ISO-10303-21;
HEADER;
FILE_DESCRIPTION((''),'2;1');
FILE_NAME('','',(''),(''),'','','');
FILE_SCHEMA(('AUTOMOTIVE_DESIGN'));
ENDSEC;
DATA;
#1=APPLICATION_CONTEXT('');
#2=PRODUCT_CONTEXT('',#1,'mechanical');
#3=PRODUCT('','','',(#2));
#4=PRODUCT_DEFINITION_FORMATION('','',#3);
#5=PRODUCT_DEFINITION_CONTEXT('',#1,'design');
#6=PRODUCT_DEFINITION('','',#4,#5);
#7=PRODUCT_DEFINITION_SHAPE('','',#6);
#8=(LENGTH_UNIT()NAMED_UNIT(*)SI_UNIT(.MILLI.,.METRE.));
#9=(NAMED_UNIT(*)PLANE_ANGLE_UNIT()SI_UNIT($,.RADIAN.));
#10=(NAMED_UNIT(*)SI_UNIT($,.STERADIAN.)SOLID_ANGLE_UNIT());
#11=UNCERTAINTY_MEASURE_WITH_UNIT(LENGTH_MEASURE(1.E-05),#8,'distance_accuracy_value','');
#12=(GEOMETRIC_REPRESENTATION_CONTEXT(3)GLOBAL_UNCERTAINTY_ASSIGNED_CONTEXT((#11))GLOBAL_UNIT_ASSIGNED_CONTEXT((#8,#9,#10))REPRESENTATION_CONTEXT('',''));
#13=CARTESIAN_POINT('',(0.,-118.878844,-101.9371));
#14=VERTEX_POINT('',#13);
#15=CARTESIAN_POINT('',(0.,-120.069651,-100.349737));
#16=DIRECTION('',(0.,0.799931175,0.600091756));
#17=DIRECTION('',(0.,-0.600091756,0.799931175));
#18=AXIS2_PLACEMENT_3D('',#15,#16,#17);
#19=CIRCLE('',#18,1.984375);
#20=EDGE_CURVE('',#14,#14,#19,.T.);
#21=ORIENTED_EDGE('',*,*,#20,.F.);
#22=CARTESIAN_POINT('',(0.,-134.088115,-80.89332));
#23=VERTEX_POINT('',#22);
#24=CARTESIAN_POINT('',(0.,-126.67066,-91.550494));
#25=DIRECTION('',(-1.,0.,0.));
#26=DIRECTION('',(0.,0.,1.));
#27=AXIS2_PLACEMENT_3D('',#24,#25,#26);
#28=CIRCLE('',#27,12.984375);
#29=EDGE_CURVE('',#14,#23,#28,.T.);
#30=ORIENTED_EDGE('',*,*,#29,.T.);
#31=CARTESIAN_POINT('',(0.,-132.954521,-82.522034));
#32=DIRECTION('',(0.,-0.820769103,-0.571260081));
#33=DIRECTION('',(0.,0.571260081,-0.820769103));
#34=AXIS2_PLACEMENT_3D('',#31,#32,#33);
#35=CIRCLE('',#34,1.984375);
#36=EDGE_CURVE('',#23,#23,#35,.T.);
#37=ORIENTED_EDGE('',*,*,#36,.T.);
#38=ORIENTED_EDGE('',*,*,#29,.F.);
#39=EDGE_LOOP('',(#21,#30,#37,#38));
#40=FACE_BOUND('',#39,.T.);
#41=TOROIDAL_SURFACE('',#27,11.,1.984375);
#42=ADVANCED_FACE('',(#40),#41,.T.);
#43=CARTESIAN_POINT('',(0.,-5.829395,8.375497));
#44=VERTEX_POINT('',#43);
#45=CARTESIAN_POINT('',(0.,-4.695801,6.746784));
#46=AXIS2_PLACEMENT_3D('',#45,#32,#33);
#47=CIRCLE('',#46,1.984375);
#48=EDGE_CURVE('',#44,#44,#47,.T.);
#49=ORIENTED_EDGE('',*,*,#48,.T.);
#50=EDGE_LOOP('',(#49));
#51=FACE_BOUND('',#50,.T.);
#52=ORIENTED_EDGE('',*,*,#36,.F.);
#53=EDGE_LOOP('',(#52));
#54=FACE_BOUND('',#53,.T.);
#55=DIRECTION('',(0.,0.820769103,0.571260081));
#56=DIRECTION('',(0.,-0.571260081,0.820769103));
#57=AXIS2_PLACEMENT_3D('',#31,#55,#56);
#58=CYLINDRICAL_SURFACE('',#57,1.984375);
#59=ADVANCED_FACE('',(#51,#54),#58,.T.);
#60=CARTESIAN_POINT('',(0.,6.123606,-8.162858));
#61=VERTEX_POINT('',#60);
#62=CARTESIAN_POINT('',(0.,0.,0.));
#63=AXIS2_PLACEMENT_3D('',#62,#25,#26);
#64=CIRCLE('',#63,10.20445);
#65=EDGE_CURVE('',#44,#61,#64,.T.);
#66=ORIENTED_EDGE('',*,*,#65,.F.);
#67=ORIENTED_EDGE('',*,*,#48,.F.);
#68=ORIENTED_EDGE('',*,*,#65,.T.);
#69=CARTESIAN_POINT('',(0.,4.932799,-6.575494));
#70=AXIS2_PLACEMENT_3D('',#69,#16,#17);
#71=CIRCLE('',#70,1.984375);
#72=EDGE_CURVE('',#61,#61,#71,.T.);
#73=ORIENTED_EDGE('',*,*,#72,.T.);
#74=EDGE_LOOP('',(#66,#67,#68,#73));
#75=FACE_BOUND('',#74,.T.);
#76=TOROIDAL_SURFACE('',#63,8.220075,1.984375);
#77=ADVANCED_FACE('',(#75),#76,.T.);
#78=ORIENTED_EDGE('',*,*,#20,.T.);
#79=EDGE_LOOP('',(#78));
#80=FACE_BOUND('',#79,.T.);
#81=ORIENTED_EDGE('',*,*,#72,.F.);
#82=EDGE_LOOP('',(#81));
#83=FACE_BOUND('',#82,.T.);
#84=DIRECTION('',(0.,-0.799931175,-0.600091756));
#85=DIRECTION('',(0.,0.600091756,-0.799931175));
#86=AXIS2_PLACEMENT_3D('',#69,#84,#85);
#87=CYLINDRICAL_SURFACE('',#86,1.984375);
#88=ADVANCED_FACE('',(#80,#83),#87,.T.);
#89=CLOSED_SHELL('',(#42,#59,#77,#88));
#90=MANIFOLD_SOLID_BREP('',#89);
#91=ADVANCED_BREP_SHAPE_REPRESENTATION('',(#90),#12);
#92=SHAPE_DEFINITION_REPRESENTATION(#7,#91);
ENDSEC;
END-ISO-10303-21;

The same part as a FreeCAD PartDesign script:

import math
import FreeCAD as App
import Part
import Sketcher

V = App.Vector
Q = App.Units.Quantity

doc = App.newDocument("Part")
body = doc.addObject("PartDesign::Body", "Body")

# Sketch on an angled plane
sketch1 = body.newObject("Sketcher::SketchObject", "Sketch")
sketch1.Placement = App.Placement(V(0, 4.932799, -6.575494), App.Rotation(V(1, 0, 0), V(0, 0.600091756, -0.799931175), V(0, 0.799931175, 0.600091756), "ZXY"))
sketch1.addGeometry(Part.Circle(V(0, 0, 0), V(0, 0, 1), 2), False)
sketch1.addConstraint([
    Sketcher.Constraint("Coincident", 0, 3, -1, 1),
    Sketcher.Constraint("Diameter", 0, Q("3.96875 mm")),
])

# Sketch on YZ plane
sketch2 = body.newObject("Sketcher::SketchObject", "Sketch001")
sketch2.AttachmentSupport = (doc.getObject("YZ_Plane"), [""])
sketch2.MapMode = "FlatFace"
sketch2.addGeometry([
    Part.LineSegment(V(-120, -100, 0), V(5, -7, 0)),
    Part.ArcOfCircle(Part.Circle(V(0, 0, 0), V(0, 0, 1), 8), math.radians(-53), math.radians(125)),
    Part.LineSegment(V(-5, 7, 0), V(-133, -83, 0)),
    Part.ArcOfCircle(Part.Circle(V(-127, -92, 0), V(0, 0, 1), 11), math.radians(125), math.radians(307)),
], False)
sketch2.addConstraint([
    Sketcher.Constraint("Tangent", 0, 2, 1, 1),
    Sketcher.Constraint("Tangent", 1, 2, 2, 1),
    Sketcher.Constraint("Tangent", 2, 2, 3, 1),
    Sketcher.Constraint("Tangent", 3, 2, 0, 1),
    Sketcher.Constraint("Coincident", 1, 3, -1, 1),
    Sketcher.Constraint("Radius", 3, Q("11 mm")),
    Sketcher.Constraint("Radius", 1, Q("8.220075 mm")),
    Sketcher.Constraint("DistanceY", 3, 3, 0, 2, Q("84.974999 mm")),
    Sketcher.Constraint("DistanceX", -1, 1, 0, 2, Q("4.932799 mm")),
])
doc.recompute()

additivepipe = body.newObject("PartDesign::AdditivePipe", "AdditivePipe")
additivepipe.Profile = sketch1
additivepipe.Spine = (sketch2, ["Edge1", "Edge2", "Edge3", "Edge4"])

doc.recompute()
